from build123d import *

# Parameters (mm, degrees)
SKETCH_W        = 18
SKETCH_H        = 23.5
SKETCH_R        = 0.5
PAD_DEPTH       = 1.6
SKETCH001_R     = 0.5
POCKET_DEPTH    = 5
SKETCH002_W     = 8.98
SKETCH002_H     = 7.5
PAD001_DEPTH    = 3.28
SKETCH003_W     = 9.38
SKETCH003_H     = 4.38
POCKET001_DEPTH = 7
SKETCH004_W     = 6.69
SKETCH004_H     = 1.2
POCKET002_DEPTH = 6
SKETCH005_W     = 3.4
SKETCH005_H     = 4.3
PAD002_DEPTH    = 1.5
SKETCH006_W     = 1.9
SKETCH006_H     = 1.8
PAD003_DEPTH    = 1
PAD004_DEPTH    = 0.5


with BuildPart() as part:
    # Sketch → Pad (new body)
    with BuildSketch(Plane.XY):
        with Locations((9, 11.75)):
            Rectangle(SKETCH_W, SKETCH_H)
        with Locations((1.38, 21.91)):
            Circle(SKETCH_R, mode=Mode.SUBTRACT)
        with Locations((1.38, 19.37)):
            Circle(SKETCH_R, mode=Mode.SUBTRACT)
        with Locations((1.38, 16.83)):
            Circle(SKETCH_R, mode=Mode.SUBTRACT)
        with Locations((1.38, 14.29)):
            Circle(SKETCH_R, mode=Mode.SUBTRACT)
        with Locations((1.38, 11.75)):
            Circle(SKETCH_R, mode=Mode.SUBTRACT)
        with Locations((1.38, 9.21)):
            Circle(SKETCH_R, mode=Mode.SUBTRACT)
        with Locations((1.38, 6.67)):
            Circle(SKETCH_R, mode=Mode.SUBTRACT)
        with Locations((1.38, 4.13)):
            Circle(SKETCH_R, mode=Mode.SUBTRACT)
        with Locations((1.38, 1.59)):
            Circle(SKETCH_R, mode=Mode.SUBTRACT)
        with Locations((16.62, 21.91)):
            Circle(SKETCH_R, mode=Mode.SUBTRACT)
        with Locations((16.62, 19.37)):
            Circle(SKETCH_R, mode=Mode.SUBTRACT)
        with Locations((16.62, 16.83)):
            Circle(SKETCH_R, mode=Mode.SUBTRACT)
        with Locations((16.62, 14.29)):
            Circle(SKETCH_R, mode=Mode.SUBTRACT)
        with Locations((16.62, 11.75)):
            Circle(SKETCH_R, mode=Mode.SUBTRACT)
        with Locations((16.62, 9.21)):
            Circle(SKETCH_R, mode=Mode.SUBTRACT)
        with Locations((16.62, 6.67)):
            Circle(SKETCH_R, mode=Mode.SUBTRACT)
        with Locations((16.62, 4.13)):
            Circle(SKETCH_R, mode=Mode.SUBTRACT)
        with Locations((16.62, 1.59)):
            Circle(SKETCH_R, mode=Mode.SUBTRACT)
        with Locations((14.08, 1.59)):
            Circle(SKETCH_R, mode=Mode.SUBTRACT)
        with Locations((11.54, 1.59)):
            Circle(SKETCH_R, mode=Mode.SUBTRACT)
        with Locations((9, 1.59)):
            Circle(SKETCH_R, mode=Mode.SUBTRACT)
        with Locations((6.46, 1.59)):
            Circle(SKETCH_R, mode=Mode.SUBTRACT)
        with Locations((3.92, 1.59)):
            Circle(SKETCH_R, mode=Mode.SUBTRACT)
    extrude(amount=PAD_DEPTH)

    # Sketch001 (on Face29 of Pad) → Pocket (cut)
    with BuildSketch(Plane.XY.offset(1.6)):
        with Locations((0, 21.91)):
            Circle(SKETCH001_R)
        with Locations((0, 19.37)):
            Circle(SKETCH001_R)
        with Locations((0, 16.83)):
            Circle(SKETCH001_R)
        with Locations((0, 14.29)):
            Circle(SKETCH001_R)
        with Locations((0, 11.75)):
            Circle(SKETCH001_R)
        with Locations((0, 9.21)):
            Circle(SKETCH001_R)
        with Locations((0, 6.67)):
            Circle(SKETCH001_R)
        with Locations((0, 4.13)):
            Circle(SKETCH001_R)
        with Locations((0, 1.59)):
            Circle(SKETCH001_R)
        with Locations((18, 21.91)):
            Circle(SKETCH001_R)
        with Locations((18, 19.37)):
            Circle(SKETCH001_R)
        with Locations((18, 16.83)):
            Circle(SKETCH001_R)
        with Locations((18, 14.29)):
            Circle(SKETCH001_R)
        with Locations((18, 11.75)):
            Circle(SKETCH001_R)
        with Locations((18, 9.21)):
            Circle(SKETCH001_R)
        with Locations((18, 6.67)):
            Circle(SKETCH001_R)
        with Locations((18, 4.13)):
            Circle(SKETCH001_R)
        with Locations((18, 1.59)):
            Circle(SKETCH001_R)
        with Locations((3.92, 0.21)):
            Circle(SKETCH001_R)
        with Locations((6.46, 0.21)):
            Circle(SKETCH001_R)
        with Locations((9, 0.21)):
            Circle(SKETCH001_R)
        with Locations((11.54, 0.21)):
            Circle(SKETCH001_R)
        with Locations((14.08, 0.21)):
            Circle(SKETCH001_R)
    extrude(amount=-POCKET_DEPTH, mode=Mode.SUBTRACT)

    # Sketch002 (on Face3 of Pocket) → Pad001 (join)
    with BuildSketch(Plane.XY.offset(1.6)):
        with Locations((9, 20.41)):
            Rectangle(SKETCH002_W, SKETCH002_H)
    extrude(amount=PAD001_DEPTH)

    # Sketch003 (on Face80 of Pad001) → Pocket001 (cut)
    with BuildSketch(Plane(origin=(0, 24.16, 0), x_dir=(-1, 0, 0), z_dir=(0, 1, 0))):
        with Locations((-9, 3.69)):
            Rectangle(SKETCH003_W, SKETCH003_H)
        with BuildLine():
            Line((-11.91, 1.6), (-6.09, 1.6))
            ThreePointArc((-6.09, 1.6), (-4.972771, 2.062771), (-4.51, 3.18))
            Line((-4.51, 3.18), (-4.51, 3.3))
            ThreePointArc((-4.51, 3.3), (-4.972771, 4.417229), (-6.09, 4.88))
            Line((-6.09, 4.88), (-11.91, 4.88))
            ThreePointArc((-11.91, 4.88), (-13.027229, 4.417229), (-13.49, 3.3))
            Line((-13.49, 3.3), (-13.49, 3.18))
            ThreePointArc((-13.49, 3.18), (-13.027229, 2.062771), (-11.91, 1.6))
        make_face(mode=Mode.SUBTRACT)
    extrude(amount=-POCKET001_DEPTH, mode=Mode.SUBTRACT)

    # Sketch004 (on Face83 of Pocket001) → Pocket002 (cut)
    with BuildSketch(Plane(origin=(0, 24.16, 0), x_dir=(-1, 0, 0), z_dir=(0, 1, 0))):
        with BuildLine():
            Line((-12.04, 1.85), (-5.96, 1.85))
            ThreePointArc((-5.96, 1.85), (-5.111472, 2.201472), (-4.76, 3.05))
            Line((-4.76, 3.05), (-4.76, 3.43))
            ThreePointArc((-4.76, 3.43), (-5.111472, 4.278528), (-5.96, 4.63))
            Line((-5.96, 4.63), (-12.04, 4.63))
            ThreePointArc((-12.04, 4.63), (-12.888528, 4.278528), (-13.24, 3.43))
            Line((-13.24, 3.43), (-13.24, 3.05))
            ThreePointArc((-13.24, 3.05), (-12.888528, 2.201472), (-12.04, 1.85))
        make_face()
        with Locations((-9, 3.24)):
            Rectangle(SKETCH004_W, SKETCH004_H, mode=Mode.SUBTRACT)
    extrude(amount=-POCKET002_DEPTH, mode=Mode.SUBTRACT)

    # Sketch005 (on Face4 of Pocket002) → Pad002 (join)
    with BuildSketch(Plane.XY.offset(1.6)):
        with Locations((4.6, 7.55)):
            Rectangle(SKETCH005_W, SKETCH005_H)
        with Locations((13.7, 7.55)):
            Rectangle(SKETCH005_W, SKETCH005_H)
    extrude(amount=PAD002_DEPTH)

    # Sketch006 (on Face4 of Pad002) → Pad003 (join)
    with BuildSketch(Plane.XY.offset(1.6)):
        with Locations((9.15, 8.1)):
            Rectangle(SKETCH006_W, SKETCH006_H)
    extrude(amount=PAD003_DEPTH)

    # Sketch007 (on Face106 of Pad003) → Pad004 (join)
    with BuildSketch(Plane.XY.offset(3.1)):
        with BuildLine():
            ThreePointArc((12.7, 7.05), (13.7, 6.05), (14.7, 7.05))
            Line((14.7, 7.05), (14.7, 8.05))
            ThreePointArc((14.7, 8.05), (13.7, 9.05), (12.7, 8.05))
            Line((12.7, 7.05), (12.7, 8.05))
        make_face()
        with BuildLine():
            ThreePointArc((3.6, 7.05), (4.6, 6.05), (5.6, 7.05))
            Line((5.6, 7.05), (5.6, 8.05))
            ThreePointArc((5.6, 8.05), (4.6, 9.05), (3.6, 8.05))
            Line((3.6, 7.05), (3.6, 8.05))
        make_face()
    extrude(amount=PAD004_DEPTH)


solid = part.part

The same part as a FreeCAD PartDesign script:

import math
import FreeCAD as App
import Part
import Sketcher

V = App.Vector
Q = App.Units.Quantity


def add_polygon(sketch, points):
    """Adds a closed chain of lines whose ends are joined by coincident constraints."""
    first, n = sketch.GeometryCount, len(points)
    for a, b in zip(points, points[1:] + points[:1]):
        sketch.addGeometry(Part.LineSegment(App.Vector(*a, 0), App.Vector(*b, 0)), False)
    for i in range(n):
        sketch.addConstraint(Sketcher.Constraint("Coincident", first + i, 2, first + (i + 1) % n, 1))

doc = App.newDocument("Part")
body = doc.addObject("PartDesign::Body", "Body")

# Sketch on XY plane
sketch1 = body.newObject("Sketcher::SketchObject", "Sketch")
sketch1.AttachmentSupport = (doc.getObject("XY_Plane"), [""])
sketch1.MapMode = "FlatFace"
add_polygon(sketch1, [(0, 23.5), (0, 0), (18, 0), (18, 23.5)])  # lines 0-3
sketch1.addGeometry(Part.Circle(V(1.4, 1.6, 0), V(0, 0, 1), 0.5), False)  # 4
sketch1.addGeometry(Part.Circle(V(3.9, 1.6, 0), V(0, 0, 1), 0.5), False)  # 5
sketch1.addGeometry(Part.Circle(V(1.4, 4.1, 0), V(0, 0, 1), 0.5), False)  # 6
sketch1.addGeometry(Part.Circle(V(6.5, 1.6, 0), V(0, 0, 1), 0.5), False)  # 7
sketch1.addGeometry(Part.Circle(V(1.4, 6.7, 0), V(0, 0, 1), 0.5), False)  # 8
sketch1.addGeometry(Part.Circle(V(1.4, 9.2, 0), V(0, 0, 1), 0.5), False)  # 9
sketch1.addGeometry(Part.Circle(V(9, 1.6, 0), V(0, 0, 1), 0.5), False)  # 10
sketch1.addGeometry(Part.Circle(V(11.5, 1.6, 0), V(0, 0, 1), 0.5), False)  # 11
sketch1.addGeometry(Part.Circle(V(14.1, 1.6, 0), V(0, 0, 1), 0.5), False)  # 12
sketch1.addGeometry(Part.Circle(V(16.6, 1.6, 0), V(0, 0, 1), 0.5), False)  # 13
sketch1.addGeometry(Part.Circle(V(16.6, 4.1, 0), V(0, 0, 1), 0.5), False)  # 14
sketch1.addGeometry(Part.Circle(V(16.6, 6.7, 0), V(0, 0, 1), 0.5), False)  # 15
sketch1.addGeometry(Part.Circle(V(16.6, 9.2, 0), V(0, 0, 1), 0.5), False)  # 16
sketch1.addGeometry(Part.Circle(V(1.4, 11.8, 0), V(0, 0, 1), 0.5), False)  # 17
sketch1.addGeometry(Part.Circle(V(1.4, 14.3, 0), V(0, 0, 1), 0.5), False)  # 18
sketch1.addGeometry(Part.Circle(V(1.4, 16.8, 0), V(0, 0, 1), 0.5), False)  # 19
sketch1.addGeometry(Part.Circle(V(1.4, 19.4, 0), V(0, 0, 1), 0.5), False)  # 20
sketch1.addGeometry(Part.Circle(V(1.4, 21.9, 0), V(0, 0, 1), 0.5), False)  # 21
sketch1.addGeometry(Part.Circle(V(16.6, 11.8, 0), V(0, 0, 1), 0.5), False)  # 22
sketch1.addGeometry(Part.Circle(V(16.6, 14.3, 0), V(0, 0, 1), 0.5), False)  # 23
sketch1.addGeometry(Part.Circle(V(16.6, 16.8, 0), V(0, 0, 1), 0.5), False)  # 24
sketch1.addGeometry(Part.Circle(V(16.6, 19.4, 0), V(0, 0, 1), 0.5), False)  # 25
sketch1.addGeometry(Part.Circle(V(16.6, 21.9, 0), V(0, 0, 1), 0.5), False)  # 26
sketch1.addConstraint([
    Sketcher.Constraint("Vertical", 0),
    Sketcher.Constraint("Horizontal", 1),
    Sketcher.Constraint("Vertical", 2),
    Sketcher.Constraint("Horizontal", 3),
    Sketcher.Constraint("Coincident", 0, 2, -1, 1),
    Sketcher.Constraint("Equal", 4, 5),
    Sketcher.Constraint("Equal", 5, 6),
    Sketcher.Constraint("Equal", 6, 7),
    Sketcher.Constraint("Equal", 7, 8),
    Sketcher.Constraint("Equal", 8, 9),
    Sketcher.Constraint("Equal", 9, 10),
    Sketcher.Constraint("Equal", 10, 11),
    Sketcher.Constraint("Equal", 11, 12),
    Sketcher.Constraint("Equal", 12, 13),
    Sketcher.Constraint("Equal", 13, 14),
    Sketcher.Constraint("Equal", 14, 15),
    Sketcher.Constraint("Equal", 15, 16),
    Sketcher.Constraint("Equal", 16, 17),
    Sketcher.Constraint("Equal", 17, 18),
    Sketcher.Constraint("Equal", 18, 19),
    Sketcher.Constraint("Equal", 19, 20),
    Sketcher.Constraint("Equal", 20, 21),
    Sketcher.Constraint("Equal", 21, 22),
    Sketcher.Constraint("Equal", 22, 23),
    Sketcher.Constraint("Equal", 23, 24),
    Sketcher.Constraint("Equal", 24, 25),
    Sketcher.Constraint("Equal", 25, 26),
    Sketcher.Constraint("Horizontal", 4, 3, 5, 3),
    Sketcher.Constraint("Horizontal", 5, 3, 7, 3),
    Sketcher.Constraint("Horizontal", 7, 3, 10, 3),
    Sketcher.Constraint("Horizontal", 10, 3, 11, 3),
    Sketcher.Constraint("Horizontal", 11, 3, 12, 3),
    Sketcher.Constraint("Horizontal", 12, 3, 13, 3),
    Sketcher.Constraint("Horizontal", 6, 3, 14, 3),
    Sketcher.Constraint("Horizontal", 8, 3, 15, 3),
    Sketcher.Constraint("Horizontal", 9, 3, 16, 3),
    Sketcher.Constraint("Horizontal", 17, 3, 22, 3),
    Sketcher.Constraint("Horizontal", 18, 3, 23, 3),
    Sketcher.Constraint("Horizontal", 19, 3, 24, 3),
    Sketcher.Constraint("Horizontal", 20, 3, 25, 3),
    Sketcher.Constraint("Horizontal", 21, 3, 26, 3),
    Sketcher.Constraint("Vertical", 4, 3, 6, 3),
    Sketcher.Constraint("Vertical", 6, 3, 8, 3),
    Sketcher.Constraint("Vertical", 8, 3, 9, 3),
    Sketcher.Constraint("Vertical", 13, 3, 14, 3),
    Sketcher.Constraint("Vertical", 14, 3, 15, 3),
    Sketcher.Constraint("Vertical", 15, 3, 16, 3),
    Sketcher.Constraint("Vertical", 9, 3, 17, 3),
    Sketcher.Constraint("Vertical", 17, 3, 18, 3),
    Sketcher.Constraint("Vertical", 18, 3, 19, 3),
    Sketcher.Constraint("Vertical", 19, 3, 20, 3),
    Sketcher.Constraint("Vertical", 20, 3, 21, 3),
    Sketcher.Constraint("Vertical", 16, 3, 22, 3),
    Sketcher.Constraint("Vertical", 22, 3, 23, 3),
    Sketcher.Constraint("Vertical", 23, 3, 24, 3),
    Sketcher.Constraint("Vertical", 24, 3, 25, 3),
    Sketcher.Constraint("Vertical", 25, 3, 26, 3),
    Sketcher.Constraint("Diameter", 4, Q("1 mm")),
    Sketcher.Constraint("DistanceX", 1, 1, 1, 2, Q("18 mm")),
    Sketcher.Constraint("DistanceY", 0, 2, 0, 1, Q("23.5 mm")),
    Sketcher.Constraint("DistanceX", -1, 1, 10, 3, Q("9 mm")),
    Sketcher.Constraint("DistanceX", 4, 3, 12, 3, Q("12.7 mm")),
    Sketcher.Constraint("DistanceX", 5, 3, 13, 3, Q("12.7 mm")),
    Sketcher.Constraint("DistanceY", 4, 3, 18, 3, Q("12.7 mm")),
    Sketcher.Constraint("DistanceY", 6, 3, 19, 3, Q("12.7 mm")),
    Sketcher.Constraint("DistanceY", 8, 3, 20, 3, Q("12.7 mm")),
    Sketcher.Constraint("DistanceY", 9, 3, 21, 3, Q("12.7 mm")),
    Sketcher.Constraint("DistanceX", -1, 1, 4, 3, Q("1.38 mm")),
    Sketcher.Constraint("DistanceY", -1, 1, 4, 3, Q("1.59 mm")),
    Sketcher.Constraint("DistanceX", -1, 1, 5, 3, Q("3.92 mm")),
    Sketcher.Constraint("DistanceY", -1, 1, 6, 3, Q("4.13 mm")),
    Sketcher.Constraint("DistanceX", -1, 1, 7, 3, Q("6.46 mm")),
    Sketcher.Constraint("DistanceY", -1, 1, 8, 3, Q("6.67 mm")),
    Sketcher.Constraint("DistanceY", -1, 1, 9, 3, Q("9.21 mm")),
    Sketcher.Constraint("DistanceX", -1, 1, 11, 3, Q("11.54 mm")),
    Sketcher.Constraint("DistanceY", -1, 1, 17, 3, Q("11.75 mm")),
])
pad1 = body.newObject("PartDesign::Pad", "Pad")
pad1.Profile = sketch1
pad1.Length = 1.6

# Sketch on XY plane
sketch2 = body.newObject("Sketcher::SketchObject", "Sketch001")
sketch2.AttachmentSupport = (doc.getObject("XY_Plane"), [""])
sketch2.MapMode = "FlatFace"
sketch2.AttachmentOffset = App.Placement(V(0, 0, 1.6), App.Rotation())
sketch2.addGeometry([
    Part.Circle(V(0, 21.9, 0), V(0, 0, 1), 0.5),  # 0
    Part.Circle(V(0, 19.4, 0), V(0, 0, 1), 0.5),  # 1
    Part.Circle(V(0, 16.8, 0), V(0, 0, 1), 0.5),  # 2
    Part.Circle(V(0, 14.3, 0), V(0, 0, 1), 0.5),  # 3
    Part.Circle(V(0, 11.8, 0), V(0, 0, 1), 0.5),  # 4
    Part.Circle(V(0, 9.2, 0), V(0, 0, 1), 0.5),  # 5
    Part.Circle(V(0, 6.7, 0), V(0, 0, 1), 0.5),  # 6
    Part.Circle(V(0, 4.1, 0), V(0, 0, 1), 0.5),  # 7
    Part.Circle(V(0, 1.6, 0), V(0, 0, 1), 0.5),  # 8
    Part.Circle(V(18, 21.9, 0), V(0, 0, 1), 0.5),  # 9
    Part.Circle(V(18, 19.4, 0), V(0, 0, 1), 0.5),  # 10
    Part.Circle(V(18, 16.8, 0), V(0, 0, 1), 0.5),  # 11
    Part.Circle(V(18, 14.3, 0), V(0, 0, 1), 0.5),  # 12
    Part.Circle(V(18, 11.8, 0), V(0, 0, 1), 0.5),  # 13
    Part.Circle(V(18, 9.2, 0), V(0, 0, 1), 0.5),  # 14
    Part.Circle(V(18, 6.7, 0), V(0, 0, 1), 0.5),  # 15
    Part.Circle(V(18, 4.1, 0), V(0, 0, 1), 0.5),  # 16
    Part.Circle(V(18, 1.6, 0), V(0, 0, 1), 0.5),  # 17
    Part.Circle(V(3.9, 0.2, 0), V(0, 0, 1), 0.5),  # 18
    Part.Circle(V(6.5, 0.2, 0), V(0, 0, 1), 0.5),  # 19
    Part.Circle(V(9, 0.2, 0), V(0, 0, 1), 0.5),  # 20
    Part.Circle(V(11.5, 0.2, 0), V(0, 0, 1), 0.5),  # 21
    Part.Circle(V(14.1, 0.2, 0), V(0, 0, 1), 0.5),  # 22
], False)
sketch2.addConstraint([
    Sketcher.Constraint("Equal", 0, 1),
    Sketcher.Constraint("Equal", 1, 2),
    Sketcher.Constraint("Equal", 2, 3),
    Sketcher.Constraint("Equal", 3, 4),
    Sketcher.Constraint("Equal", 4, 5),
    Sketcher.Constraint("Equal", 5, 6),
    Sketcher.Constraint("Equal", 6, 7),
    Sketcher.Constraint("Equal", 7, 8),
    Sketcher.Constraint("Equal", 8, 9),
    Sketcher.Constraint("Equal", 9, 10),
    Sketcher.Constraint("Equal", 10, 11),
    Sketcher.Constraint("Equal", 11, 12),
    Sketcher.Constraint("Equal", 12, 13),
    Sketcher.Constraint("Equal", 13, 14),
    Sketcher.Constraint("Equal", 14, 15),
    Sketcher.Constraint("Equal", 15, 16),
    Sketcher.Constraint("Equal", 16, 17),
    Sketcher.Constraint("Equal", 17, 18),
    Sketcher.Constraint("Equal", 18, 19),
    Sketcher.Constraint("Equal", 19, 20),
    Sketcher.Constraint("Equal", 20, 21),
    Sketcher.Constraint("Equal", 21, 22),
    Sketcher.Constraint("PointOnObject", 0, 3, -2),
    Sketcher.Constraint("PointOnObject", 1, 3, -2),
    Sketcher.Constraint("PointOnObject", 2, 3, -2),
    Sketcher.Constraint("PointOnObject", 3, 3, -2),
    Sketcher.Constraint("PointOnObject", 4, 3, -2),
    Sketcher.Constraint("PointOnObject", 5, 3, -2),
    Sketcher.Constraint("PointOnObject", 6, 3, -2),
    Sketcher.Constraint("PointOnObject", 7, 3, -2),
    Sketcher.Constraint("PointOnObject", 8, 3, -2),
    Sketcher.Constraint("Horizontal", 0, 3, 9, 3),
    Sketcher.Constraint("Horizontal", 1, 3, 10, 3),
    Sketcher.Constraint("Horizontal", 2, 3, 11, 3),
    Sketcher.Constraint("Horizontal", 3, 3, 12, 3),
    Sketcher.Constraint("Horizontal", 4, 3, 13, 3),
    Sketcher.Constraint("Horizontal", 5, 3, 14, 3),
    Sketcher.Constraint("Horizontal", 6, 3, 15, 3),
    Sketcher.Constraint("Horizontal", 7, 3, 16, 3),
    Sketcher.Constraint("Horizontal", 8, 3, 17, 3),
    Sketcher.Constraint("Horizontal", 18, 3, 19, 3),
    Sketcher.Constraint("Horizontal", 19, 3, 20, 3),
    Sketcher.Constraint("Horizontal", 20, 3, 21, 3),
    Sketcher.Constraint("Horizontal", 21, 3, 22, 3),
    Sketcher.Constraint("Vertical", 9, 3, 10, 3),
    Sketcher.Constraint("Vertical", 10, 3, 11, 3),
    Sketcher.Constraint("Vertical", 11, 3, 12, 3),
    Sketcher.Constraint("Vertical", 12, 3, 13, 3),
    Sketcher.Constraint("Vertical", 13, 3, 14, 3),
    Sketcher.Constraint("Vertical", 14, 3, 15, 3),
    Sketcher.Constraint("Vertical", 15, 3, 16, 3),
    Sketcher.Constraint("Vertical", 16, 3, 17, 3),
    Sketcher.Constraint("Diameter", 0, Q("1 mm")),
    Sketcher.Constraint("DistanceX", -1, 1, 9, 3, Q("18 mm")),
    Sketcher.Constraint("DistanceX", -1, 1, 20, 3, Q("9 mm")),
    Sketcher.Constraint("DistanceY", 18, 3, 5, 3, Q("9 mm")),
    Sketcher.Constraint("DistanceY", 5, 3, 0, 3, Q("12.7 mm")),
    Sketcher.Constraint("DistanceY", 6, 3, 1, 3, Q("12.7 mm")),
    Sketcher.Constraint("DistanceY", 7, 3, 2, 3, Q("12.7 mm")),
    Sketcher.Constraint("DistanceY", 8, 3, 3, 3, Q("12.7 mm")),
    Sketcher.Constraint("DistanceY", -1, 1, 0, 3, Q("21.91 mm")),
    Sketcher.Constraint("DistanceY", -1, 1, 1, 3, Q("19.37 mm")),
    Sketcher.Constraint("DistanceY", -1, 1, 2, 3, Q("16.83 mm")),
    Sketcher.Constraint("DistanceY", -1, 1, 3, 3, Q("14.29 mm")),
    Sketcher.Constraint("DistanceY", -1, 1, 4, 3, Q("11.75 mm")),
    Sketcher.Constraint("DistanceX", -1, 1, 18, 3, Q("3.92 mm")),
    Sketcher.Constraint("DistanceX", -1, 1, 19, 3, Q("6.46 mm")),
    Sketcher.Constraint("DistanceX", -1, 1, 21, 3, Q("11.54 mm")),
    Sketcher.Constraint("DistanceX", -1, 1, 22, 3, Q("14.08 mm")),
])
pocket1 = body.newObject("PartDesign::Pocket", "Pocket")
pocket1.Profile = sketch2
pocket1.Length = 5

# Sketch on XY plane
sketch3 = body.newObject("Sketcher::SketchObject", "Sketch002")
sketch3.AttachmentSupport = (doc.getObject("XY_Plane"), [""])
sketch3.MapMode = "FlatFace"
sketch3.AttachmentOffset = App.Placement(V(0, 0, 1.6), App.Rotation())
add_polygon(sketch3, [(5, 24), (5, 17), (13, 17), (13, 24)])  # lines 0-3
sketch3.addConstraint([
    Sketcher.Constraint("Vertical", 0),
    Sketcher.Constraint("Horizontal", 1),
    Sketcher.Constraint("Vertical", 2),
    Sketcher.Constraint("Horizontal", 3),
    Sketcher.Constraint("DistanceY", 0, 2, 0, 1, Q("7.5 mm")),
    Sketcher.Constraint("DistanceX", 1, 1, 1, 2, Q("8.98 mm")),
    Sketcher.Constraint("DistanceX", -1, 1, 0, 2, Q("4.51 mm")),
    Sketcher.Constraint("DistanceY", -1, 1, 0, 2, Q("16.66 mm")),
])
pad2 = body.newObject("PartDesign::Pad", "Pad001")
pad2.Profile = sketch3
pad2.Length = 3.28

# Sketch on XZ plane
sketch4 = body.newObject("Sketcher::SketchObject", "Sketch003")
sketch4.AttachmentSupport = (doc.getObject("XZ_Plane"), [""])
sketch4.MapMode = "FlatFace"
sketch4.AttachmentOffset = App.Placement(V(0, 0, -24.16), App.Rotation())
add_polygon(sketch4, [(13.69, 5.88), (13.69, 1.5), (4.31, 1.5), (4.31, 5.88)])  # lines 0-3
sketch4.addGeometry(Part.LineSegment(V(6.09, 1.6, 0), V(11.91, 1.6, 0)), False)  # 4
sketch4.addGeometry(Part.ArcOfCircle(Part.Circle(V(11.91, 3.18, 0), V(0, 0, 1), 1.58), math.radians(-90), math.radians(0)), False)  # 5
sketch4.addGeometry(Part.LineSegment(V(13.49, 3.18, 0), V(13.49, 3.3, 0)), False)  # 6
sketch4.addGeometry(Part.ArcOfCircle(Part.Circle(V(11.91, 3.3, 0), V(0, 0, 1), 1.58), math.radians(0), math.radians(90)), False)  # 7
sketch4.addGeometry(Part.LineSegment(V(11.91, 4.88, 0), V(6.09, 4.88, 0)), False)  # 8
sketch4.addGeometry(Part.ArcOfCircle(Part.Circle(V(6.09, 3.3, 0), V(0, 0, 1), 1.58), math.radians(90), math.radians(180)), False)  # 9
sketch4.addGeometry(Part.LineSegment(V(4.51, 3.3, 0), V(4.51, 3.18, 0)), False)  # 10
sketch4.addGeometry(Part.ArcOfCircle(Part.Circle(V(6.09, 3.18, 0), V(0, 0, 1), 1.58), math.radians(180), math.radians(270)), False)  # 11
sketch4.addConstraint([
    Sketcher.Constraint("Tangent", 4, 2, 5, 1),
    Sketcher.Constraint("Tangent", 5, 2, 6, 1),
    Sketcher.Constraint("Tangent", 6, 2, 7, 1),
    Sketcher.Constraint("Tangent", 7, 2, 8, 1),
    Sketcher.Constraint("Tangent", 8, 2, 9, 1),
    Sketcher.Constraint("Tangent", 9, 2, 10, 1),
    Sketcher.Constraint("Tangent", 10, 2, 11, 1),
    Sketcher.Constraint("Tangent", 11, 2, 4, 1),
    Sketcher.Constraint("Vertical", 0),
    Sketcher.Constraint("Horizontal", 1),
    Sketcher.Constraint("Vertical", 2),
    Sketcher.Constraint("Horizontal", 3),
    Sketcher.Constraint("Horizontal", 4),
    Sketcher.Constraint("Vertical", 6),
    Sketcher.Constraint("Horizontal", 8),
    Sketcher.Constraint("Vertical", 10),
    Sketcher.Constraint("Equal", 5, 7),
    Sketcher.Constraint("Equal", 7, 9),
    Sketcher.Constraint("Equal", 9, 11),
    Sketcher.Constraint("Radius", 5, Q("1.579999 mm")),
    Sketcher.Constraint("DistanceY", 7, 2, 3, 2, Q("1 mm")),
    Sketcher.Constraint("DistanceX", 1, 2, 1, 1, Q("9.38 mm")),
    Sketcher.Constraint("DistanceX", 4, 1, 4, 2, Q("5.82 mm")),
    Sketcher.Constraint("DistanceY", 0, 2, 0, 1, Q("4.38 mm")),
    Sketcher.Constraint("DistanceY", 6, 1, 6, 2, Q("0.12 mm")),
    Sketcher.Constraint("DistanceY", -1, 1, 7, 3, Q("3.300001 mm")),
    Sketcher.Constraint("DistanceX", 11, 3, 0, 2, Q("7.600001 mm")),
    Sketcher.Constraint("DistanceX", -1, 1, 5, 3, Q("11.910001 mm")),
])
pocket2 = body.newObject("PartDesign::Pocket", "Pocket001")
pocket2.Profile = sketch4
pocket2.Length = 7
pocket2.Reversed = True

# Sketch on XZ plane
sketch5 = body.newObject("Sketcher::SketchObject", "Sketch004")
sketch5.AttachmentSupport = (doc.getObject("XZ_Plane"), [""])
sketch5.MapMode = "FlatFace"
sketch5.AttachmentOffset = App.Placement(V(0, 0, -24.16), App.Rotation())
sketch5.addGeometry(Part.LineSegment(V(12.04, 1.85, 0), V(5.96, 1.85, 0)), False)  # 0
sketch5.addGeometry(Part.ArcOfCircle(Part.Circle(V(5.96, 3.05, 0), V(0, 0, 1), 1.2), math.radians(-180), math.radians(-90)), False)  # 1
sketch5.addGeometry(Part.LineSegment(V(4.76, 3.05, 0), V(4.76, 3.43, 0)), False)  # 2
sketch5.addGeometry(Part.ArcOfCircle(Part.Circle(V(5.96, 3.43, 0), V(0, 0, 1), 1.2), math.radians(90), math.radians(180)), False)  # 3
sketch5.addGeometry(Part.LineSegment(V(5.96, 4.63, 0), V(12.04, 4.63, 0)), False)  # 4
sketch5.addGeometry(Part.ArcOfCircle(Part.Circle(V(12.04, 3.43, 0), V(0, 0, 1), 1.2), math.radians(0), math.radians(90)), False)  # 5
sketch5.addGeometry(Part.LineSegment(V(13.24, 3.43, 0), V(13.24, 3.05, 0)), False)  # 6
sketch5.addGeometry(Part.ArcOfCircle(Part.Circle(V(12.04, 3.05, 0), V(0, 0, 1), 1.2), math.radians(-90), math.radians(0)), False)  # 7
add_polygon(sketch5, [(5.66, 2.64), (12.35, 2.64), (12.35, 3.84), (5.66, 3.84)])  # lines 8-11
sketch5.addConstraint([
    Sketcher.Constraint("Tangent", 0, 2, 1, 2),
    Sketcher.Constraint("Tangent", 1, 1, 2, 1),
    Sketcher.Constraint("Tangent", 2, 2, 3, 2),
    Sketcher.Constraint("Tangent", 3, 1, 4, 1),
    Sketcher.Constraint("Tangent", 4, 2, 5, 2),
    Sketcher.Constraint("Tangent", 5, 1, 6, 1),
    Sketcher.Constraint("Tangent", 6, 2, 7, 2),
    Sketcher.Constraint("Tangent", 7, 1, 0, 1),
    Sketcher.Constraint("Horizontal", 0),
    Sketcher.Constraint("Vertical", 2),
    Sketcher.Constraint("Horizontal", 4),
    Sketcher.Constraint("Vertical", 6),
    Sketcher.Constraint("Horizontal", 8),
    Sketcher.Constraint("Vertical", 9),
    Sketcher.Constraint("Horizontal", 10),
    Sketcher.Constraint("Vertical", 11),
    Sketcher.Constraint("Equal", 1, 3),
    Sketcher.Constraint("Equal", 3, 5),
    Sketcher.Constraint("Equal", 5, 7),
    Sketcher.Constraint("Radius", 1, Q("1.2 mm")),
    Sketcher.Constraint("DistanceY", 9, 1, 9, 2, Q("1.2 mm")),
    Sketcher.Constraint("DistanceX", 0, 2, 0, 1, Q("6.08 mm")),
    Sketcher.Constraint("DistanceX", 8, 1, 8, 2, Q("6.69 mm")),
    Sketcher.Constraint("DistanceY", 2, 1, 2, 2, Q("0.38 mm")),
    Sketcher.Constraint("DistanceX", -1, 1, 1, 3, Q("5.96 mm")),
    Sketcher.Constraint("DistanceY", -1, 1, 1, 3, Q("3.05 mm")),
    Sketcher.Constraint("DistanceY", -1, 1, 8, 2, Q("2.64 mm")),
    Sketcher.Constraint("DistanceX", -1, 1, 8, 2, Q("12.345 mm")),
])
pocket3 = body.newObject("PartDesign::Pocket", "Pocket002")
pocket3.Profile = sketch5
pocket3.Length = 6
pocket3.Reversed = True

# Sketch on XY plane
sketch6 = body.newObject("Sketcher::SketchObject", "Sketch005")
sketch6.AttachmentSupport = (doc.getObject("XY_Plane"), [""])
sketch6.MapMode = "FlatFace"
sketch6.AttachmentOffset = App.Placement(V(0, 0, 1.6), App.Rotation())
add_polygon(sketch6, [(2.9, 9.7), (2.9, 5.4), (6.3, 5.4), (6.3, 9.7)])  # lines 0-3
add_polygon(sketch6, [(12, 9.7), (12, 5.4), (15.4, 5.4), (15.4, 9.7)])  # lines 4-7
sketch6.addConstraint([
    Sketcher.Constraint("Vertical", 0),
    Sketcher.Constraint("Horizontal", 1),
    Sketcher.Constraint("Vertical", 2),
    Sketcher.Constraint("Horizontal", 3),
    Sketcher.Constraint("Vertical", 4),
    Sketcher.Constraint("Horizontal", 5),
    Sketcher.Constraint("Vertical", 6),
    Sketcher.Constraint("Horizontal", 7),
    Sketcher.Constraint("Horizontal", 1, 2, 4, 2),
    Sketcher.Constraint("Horizontal", 3, 2, 6, 2),
    Sketcher.Constraint("Equal", 3, 5),
    Sketcher.Constraint("DistanceX", 1, 1, 1, 2, Q("3.4 mm")),
    Sketcher.Constraint("DistanceY", 0, 2, 0, 1, Q("4.3 mm")),
    Sketcher.Constraint("DistanceX", -1, 1, 4, 2, Q("12 mm")),
    Sketcher.Constraint("DistanceX", -1, 1, 0, 2, Q("2.9 mm")),
    Sketcher.Constraint("DistanceY", -1, 1, 0, 2, Q("5.4 mm")),
])
pad3 = body.newObject("PartDesign::Pad", "Pad002")
pad3.Profile = sketch6
pad3.Length = 1.5

# Sketch on XY plane
sketch7 = body.newObject("Sketcher::SketchObject", "Sketch006")
sketch7.AttachmentSupport = (doc.getObject("XY_Plane"), [""])
sketch7.MapMode = "FlatFace"
sketch7.AttachmentOffset = App.Placement(V(0, 0, 1.6), App.Rotation())
add_polygon(sketch7, [(8.2, 9), (8.2, 7.2), (10.1, 7.2), (10.1, 9)])  # lines 0-3
sketch7.addConstraint([
    Sketcher.Constraint("Vertical", 0),
    Sketcher.Constraint("Horizontal", 1),
    Sketcher.Constraint("Vertical", 2),
    Sketcher.Constraint("Horizontal", 3),
    Sketcher.Constraint("DistanceX", 1, 1, 1, 2, Q("1.9 mm")),
    Sketcher.Constraint("DistanceY", 0, 2, 0, 1, Q("1.8 mm")),
    Sketcher.Constraint("DistanceY", -1, 1, 2, 2, Q("9 mm")),
    Sketcher.Constraint("DistanceX", -1, 1, 0, 2, Q("8.2 mm")),
])
pad4 = body.newObject("PartDesign::Pad", "Pad003")
pad4.Profile = sketch7
pad4.Length = 1

# Sketch on XY plane
sketch8 = body.newObject("Sketcher::SketchObject", "Sketch007")
sketch8.AttachmentSupport = (doc.getObject("XY_Plane"), [""])
sketch8.MapMode = "FlatFace"
sketch8.AttachmentOffset = App.Placement(V(0, 0, 3.1), App.Rotation())
sketch8.addGeometry([
    Part.ArcOfCircle(Part.Circle(V(13.7, 7, 0), V(0, 0, 1), 1), math.radians(180), math.radians(360)),  # 0
    Part.LineSegment(V(14.7, 7, 0), V(14.7, 8.1, 0)),  # 1
    Part.ArcOfCircle(Part.Circle(V(13.7, 8.1, 0), V(0, 0, 1), 1), math.radians(0), math.radians(180)),  # 2
    Part.LineSegment(V(12.7, 8.1, 0), V(12.7, 7, 0)),  # 3
    Part.ArcOfCircle(Part.Circle(V(4.6, 7, 0), V(0, 0, 1), 1), math.radians(180), math.radians(360)),  # 4
    Part.LineSegment(V(5.6, 7, 0), V(5.6, 8.1, 0)),  # 5
    Part.ArcOfCircle(Part.Circle(V(4.6, 8.1, 0), V(0, 0, 1), 1), math.radians(0), math.radians(180)),  # 6
    Part.LineSegment(V(3.6, 8.1, 0), V(3.6, 7, 0)),  # 7
], False)
sketch8.addConstraint([
    Sketcher.Constraint("Tangent", 0, 2, 1, 1),
    Sketcher.Constraint("Tangent", 1, 2, 2, 1),
    Sketcher.Constraint("Tangent", 2, 2, 3, 1),
    Sketcher.Constraint("Tangent", 3, 2, 0, 1),
    Sketcher.Constraint("Tangent", 4, 2, 5, 1),
    Sketcher.Constraint("Tangent", 5, 2, 6, 1),
    Sketcher.Constraint("Tangent", 6, 2, 7, 1),
    Sketcher.Constraint("Tangent", 7, 2, 4, 1),
    Sketcher.Constraint("Vertical", 1),
    Sketcher.Constraint("Vertical", 3),
    Sketcher.Constraint("Vertical", 5),
    Sketcher.Constraint("Vertical", 7),
    Sketcher.Constraint("Equal", 2, 4),
    Sketcher.Constraint("Horizontal", 0, 3, 4, 3),
    Sketcher.Constraint("Horizontal", 2, 3, 6, 3),
    Sketcher.Constraint("Radius", 0, Q("1 mm")),
    Sketcher.Constraint("DistanceY", 1, 1, 1, 2, Q("1 mm")),
    Sketcher.Constraint("DistanceX", -1, 1, 0, 3, Q("13.7 mm")),
    Sketcher.Constraint("DistanceX", -1, 1, 4, 3, Q("4.6 mm")),
    Sketcher.Constraint("DistanceY", -1, 1, 0, 3, Q("7.05 mm")),
])
pad5 = body.newObject("PartDesign::Pad", "Pad004")
pad5.Profile = sketch8
pad5.Length = 0.5

doc.recompute()
